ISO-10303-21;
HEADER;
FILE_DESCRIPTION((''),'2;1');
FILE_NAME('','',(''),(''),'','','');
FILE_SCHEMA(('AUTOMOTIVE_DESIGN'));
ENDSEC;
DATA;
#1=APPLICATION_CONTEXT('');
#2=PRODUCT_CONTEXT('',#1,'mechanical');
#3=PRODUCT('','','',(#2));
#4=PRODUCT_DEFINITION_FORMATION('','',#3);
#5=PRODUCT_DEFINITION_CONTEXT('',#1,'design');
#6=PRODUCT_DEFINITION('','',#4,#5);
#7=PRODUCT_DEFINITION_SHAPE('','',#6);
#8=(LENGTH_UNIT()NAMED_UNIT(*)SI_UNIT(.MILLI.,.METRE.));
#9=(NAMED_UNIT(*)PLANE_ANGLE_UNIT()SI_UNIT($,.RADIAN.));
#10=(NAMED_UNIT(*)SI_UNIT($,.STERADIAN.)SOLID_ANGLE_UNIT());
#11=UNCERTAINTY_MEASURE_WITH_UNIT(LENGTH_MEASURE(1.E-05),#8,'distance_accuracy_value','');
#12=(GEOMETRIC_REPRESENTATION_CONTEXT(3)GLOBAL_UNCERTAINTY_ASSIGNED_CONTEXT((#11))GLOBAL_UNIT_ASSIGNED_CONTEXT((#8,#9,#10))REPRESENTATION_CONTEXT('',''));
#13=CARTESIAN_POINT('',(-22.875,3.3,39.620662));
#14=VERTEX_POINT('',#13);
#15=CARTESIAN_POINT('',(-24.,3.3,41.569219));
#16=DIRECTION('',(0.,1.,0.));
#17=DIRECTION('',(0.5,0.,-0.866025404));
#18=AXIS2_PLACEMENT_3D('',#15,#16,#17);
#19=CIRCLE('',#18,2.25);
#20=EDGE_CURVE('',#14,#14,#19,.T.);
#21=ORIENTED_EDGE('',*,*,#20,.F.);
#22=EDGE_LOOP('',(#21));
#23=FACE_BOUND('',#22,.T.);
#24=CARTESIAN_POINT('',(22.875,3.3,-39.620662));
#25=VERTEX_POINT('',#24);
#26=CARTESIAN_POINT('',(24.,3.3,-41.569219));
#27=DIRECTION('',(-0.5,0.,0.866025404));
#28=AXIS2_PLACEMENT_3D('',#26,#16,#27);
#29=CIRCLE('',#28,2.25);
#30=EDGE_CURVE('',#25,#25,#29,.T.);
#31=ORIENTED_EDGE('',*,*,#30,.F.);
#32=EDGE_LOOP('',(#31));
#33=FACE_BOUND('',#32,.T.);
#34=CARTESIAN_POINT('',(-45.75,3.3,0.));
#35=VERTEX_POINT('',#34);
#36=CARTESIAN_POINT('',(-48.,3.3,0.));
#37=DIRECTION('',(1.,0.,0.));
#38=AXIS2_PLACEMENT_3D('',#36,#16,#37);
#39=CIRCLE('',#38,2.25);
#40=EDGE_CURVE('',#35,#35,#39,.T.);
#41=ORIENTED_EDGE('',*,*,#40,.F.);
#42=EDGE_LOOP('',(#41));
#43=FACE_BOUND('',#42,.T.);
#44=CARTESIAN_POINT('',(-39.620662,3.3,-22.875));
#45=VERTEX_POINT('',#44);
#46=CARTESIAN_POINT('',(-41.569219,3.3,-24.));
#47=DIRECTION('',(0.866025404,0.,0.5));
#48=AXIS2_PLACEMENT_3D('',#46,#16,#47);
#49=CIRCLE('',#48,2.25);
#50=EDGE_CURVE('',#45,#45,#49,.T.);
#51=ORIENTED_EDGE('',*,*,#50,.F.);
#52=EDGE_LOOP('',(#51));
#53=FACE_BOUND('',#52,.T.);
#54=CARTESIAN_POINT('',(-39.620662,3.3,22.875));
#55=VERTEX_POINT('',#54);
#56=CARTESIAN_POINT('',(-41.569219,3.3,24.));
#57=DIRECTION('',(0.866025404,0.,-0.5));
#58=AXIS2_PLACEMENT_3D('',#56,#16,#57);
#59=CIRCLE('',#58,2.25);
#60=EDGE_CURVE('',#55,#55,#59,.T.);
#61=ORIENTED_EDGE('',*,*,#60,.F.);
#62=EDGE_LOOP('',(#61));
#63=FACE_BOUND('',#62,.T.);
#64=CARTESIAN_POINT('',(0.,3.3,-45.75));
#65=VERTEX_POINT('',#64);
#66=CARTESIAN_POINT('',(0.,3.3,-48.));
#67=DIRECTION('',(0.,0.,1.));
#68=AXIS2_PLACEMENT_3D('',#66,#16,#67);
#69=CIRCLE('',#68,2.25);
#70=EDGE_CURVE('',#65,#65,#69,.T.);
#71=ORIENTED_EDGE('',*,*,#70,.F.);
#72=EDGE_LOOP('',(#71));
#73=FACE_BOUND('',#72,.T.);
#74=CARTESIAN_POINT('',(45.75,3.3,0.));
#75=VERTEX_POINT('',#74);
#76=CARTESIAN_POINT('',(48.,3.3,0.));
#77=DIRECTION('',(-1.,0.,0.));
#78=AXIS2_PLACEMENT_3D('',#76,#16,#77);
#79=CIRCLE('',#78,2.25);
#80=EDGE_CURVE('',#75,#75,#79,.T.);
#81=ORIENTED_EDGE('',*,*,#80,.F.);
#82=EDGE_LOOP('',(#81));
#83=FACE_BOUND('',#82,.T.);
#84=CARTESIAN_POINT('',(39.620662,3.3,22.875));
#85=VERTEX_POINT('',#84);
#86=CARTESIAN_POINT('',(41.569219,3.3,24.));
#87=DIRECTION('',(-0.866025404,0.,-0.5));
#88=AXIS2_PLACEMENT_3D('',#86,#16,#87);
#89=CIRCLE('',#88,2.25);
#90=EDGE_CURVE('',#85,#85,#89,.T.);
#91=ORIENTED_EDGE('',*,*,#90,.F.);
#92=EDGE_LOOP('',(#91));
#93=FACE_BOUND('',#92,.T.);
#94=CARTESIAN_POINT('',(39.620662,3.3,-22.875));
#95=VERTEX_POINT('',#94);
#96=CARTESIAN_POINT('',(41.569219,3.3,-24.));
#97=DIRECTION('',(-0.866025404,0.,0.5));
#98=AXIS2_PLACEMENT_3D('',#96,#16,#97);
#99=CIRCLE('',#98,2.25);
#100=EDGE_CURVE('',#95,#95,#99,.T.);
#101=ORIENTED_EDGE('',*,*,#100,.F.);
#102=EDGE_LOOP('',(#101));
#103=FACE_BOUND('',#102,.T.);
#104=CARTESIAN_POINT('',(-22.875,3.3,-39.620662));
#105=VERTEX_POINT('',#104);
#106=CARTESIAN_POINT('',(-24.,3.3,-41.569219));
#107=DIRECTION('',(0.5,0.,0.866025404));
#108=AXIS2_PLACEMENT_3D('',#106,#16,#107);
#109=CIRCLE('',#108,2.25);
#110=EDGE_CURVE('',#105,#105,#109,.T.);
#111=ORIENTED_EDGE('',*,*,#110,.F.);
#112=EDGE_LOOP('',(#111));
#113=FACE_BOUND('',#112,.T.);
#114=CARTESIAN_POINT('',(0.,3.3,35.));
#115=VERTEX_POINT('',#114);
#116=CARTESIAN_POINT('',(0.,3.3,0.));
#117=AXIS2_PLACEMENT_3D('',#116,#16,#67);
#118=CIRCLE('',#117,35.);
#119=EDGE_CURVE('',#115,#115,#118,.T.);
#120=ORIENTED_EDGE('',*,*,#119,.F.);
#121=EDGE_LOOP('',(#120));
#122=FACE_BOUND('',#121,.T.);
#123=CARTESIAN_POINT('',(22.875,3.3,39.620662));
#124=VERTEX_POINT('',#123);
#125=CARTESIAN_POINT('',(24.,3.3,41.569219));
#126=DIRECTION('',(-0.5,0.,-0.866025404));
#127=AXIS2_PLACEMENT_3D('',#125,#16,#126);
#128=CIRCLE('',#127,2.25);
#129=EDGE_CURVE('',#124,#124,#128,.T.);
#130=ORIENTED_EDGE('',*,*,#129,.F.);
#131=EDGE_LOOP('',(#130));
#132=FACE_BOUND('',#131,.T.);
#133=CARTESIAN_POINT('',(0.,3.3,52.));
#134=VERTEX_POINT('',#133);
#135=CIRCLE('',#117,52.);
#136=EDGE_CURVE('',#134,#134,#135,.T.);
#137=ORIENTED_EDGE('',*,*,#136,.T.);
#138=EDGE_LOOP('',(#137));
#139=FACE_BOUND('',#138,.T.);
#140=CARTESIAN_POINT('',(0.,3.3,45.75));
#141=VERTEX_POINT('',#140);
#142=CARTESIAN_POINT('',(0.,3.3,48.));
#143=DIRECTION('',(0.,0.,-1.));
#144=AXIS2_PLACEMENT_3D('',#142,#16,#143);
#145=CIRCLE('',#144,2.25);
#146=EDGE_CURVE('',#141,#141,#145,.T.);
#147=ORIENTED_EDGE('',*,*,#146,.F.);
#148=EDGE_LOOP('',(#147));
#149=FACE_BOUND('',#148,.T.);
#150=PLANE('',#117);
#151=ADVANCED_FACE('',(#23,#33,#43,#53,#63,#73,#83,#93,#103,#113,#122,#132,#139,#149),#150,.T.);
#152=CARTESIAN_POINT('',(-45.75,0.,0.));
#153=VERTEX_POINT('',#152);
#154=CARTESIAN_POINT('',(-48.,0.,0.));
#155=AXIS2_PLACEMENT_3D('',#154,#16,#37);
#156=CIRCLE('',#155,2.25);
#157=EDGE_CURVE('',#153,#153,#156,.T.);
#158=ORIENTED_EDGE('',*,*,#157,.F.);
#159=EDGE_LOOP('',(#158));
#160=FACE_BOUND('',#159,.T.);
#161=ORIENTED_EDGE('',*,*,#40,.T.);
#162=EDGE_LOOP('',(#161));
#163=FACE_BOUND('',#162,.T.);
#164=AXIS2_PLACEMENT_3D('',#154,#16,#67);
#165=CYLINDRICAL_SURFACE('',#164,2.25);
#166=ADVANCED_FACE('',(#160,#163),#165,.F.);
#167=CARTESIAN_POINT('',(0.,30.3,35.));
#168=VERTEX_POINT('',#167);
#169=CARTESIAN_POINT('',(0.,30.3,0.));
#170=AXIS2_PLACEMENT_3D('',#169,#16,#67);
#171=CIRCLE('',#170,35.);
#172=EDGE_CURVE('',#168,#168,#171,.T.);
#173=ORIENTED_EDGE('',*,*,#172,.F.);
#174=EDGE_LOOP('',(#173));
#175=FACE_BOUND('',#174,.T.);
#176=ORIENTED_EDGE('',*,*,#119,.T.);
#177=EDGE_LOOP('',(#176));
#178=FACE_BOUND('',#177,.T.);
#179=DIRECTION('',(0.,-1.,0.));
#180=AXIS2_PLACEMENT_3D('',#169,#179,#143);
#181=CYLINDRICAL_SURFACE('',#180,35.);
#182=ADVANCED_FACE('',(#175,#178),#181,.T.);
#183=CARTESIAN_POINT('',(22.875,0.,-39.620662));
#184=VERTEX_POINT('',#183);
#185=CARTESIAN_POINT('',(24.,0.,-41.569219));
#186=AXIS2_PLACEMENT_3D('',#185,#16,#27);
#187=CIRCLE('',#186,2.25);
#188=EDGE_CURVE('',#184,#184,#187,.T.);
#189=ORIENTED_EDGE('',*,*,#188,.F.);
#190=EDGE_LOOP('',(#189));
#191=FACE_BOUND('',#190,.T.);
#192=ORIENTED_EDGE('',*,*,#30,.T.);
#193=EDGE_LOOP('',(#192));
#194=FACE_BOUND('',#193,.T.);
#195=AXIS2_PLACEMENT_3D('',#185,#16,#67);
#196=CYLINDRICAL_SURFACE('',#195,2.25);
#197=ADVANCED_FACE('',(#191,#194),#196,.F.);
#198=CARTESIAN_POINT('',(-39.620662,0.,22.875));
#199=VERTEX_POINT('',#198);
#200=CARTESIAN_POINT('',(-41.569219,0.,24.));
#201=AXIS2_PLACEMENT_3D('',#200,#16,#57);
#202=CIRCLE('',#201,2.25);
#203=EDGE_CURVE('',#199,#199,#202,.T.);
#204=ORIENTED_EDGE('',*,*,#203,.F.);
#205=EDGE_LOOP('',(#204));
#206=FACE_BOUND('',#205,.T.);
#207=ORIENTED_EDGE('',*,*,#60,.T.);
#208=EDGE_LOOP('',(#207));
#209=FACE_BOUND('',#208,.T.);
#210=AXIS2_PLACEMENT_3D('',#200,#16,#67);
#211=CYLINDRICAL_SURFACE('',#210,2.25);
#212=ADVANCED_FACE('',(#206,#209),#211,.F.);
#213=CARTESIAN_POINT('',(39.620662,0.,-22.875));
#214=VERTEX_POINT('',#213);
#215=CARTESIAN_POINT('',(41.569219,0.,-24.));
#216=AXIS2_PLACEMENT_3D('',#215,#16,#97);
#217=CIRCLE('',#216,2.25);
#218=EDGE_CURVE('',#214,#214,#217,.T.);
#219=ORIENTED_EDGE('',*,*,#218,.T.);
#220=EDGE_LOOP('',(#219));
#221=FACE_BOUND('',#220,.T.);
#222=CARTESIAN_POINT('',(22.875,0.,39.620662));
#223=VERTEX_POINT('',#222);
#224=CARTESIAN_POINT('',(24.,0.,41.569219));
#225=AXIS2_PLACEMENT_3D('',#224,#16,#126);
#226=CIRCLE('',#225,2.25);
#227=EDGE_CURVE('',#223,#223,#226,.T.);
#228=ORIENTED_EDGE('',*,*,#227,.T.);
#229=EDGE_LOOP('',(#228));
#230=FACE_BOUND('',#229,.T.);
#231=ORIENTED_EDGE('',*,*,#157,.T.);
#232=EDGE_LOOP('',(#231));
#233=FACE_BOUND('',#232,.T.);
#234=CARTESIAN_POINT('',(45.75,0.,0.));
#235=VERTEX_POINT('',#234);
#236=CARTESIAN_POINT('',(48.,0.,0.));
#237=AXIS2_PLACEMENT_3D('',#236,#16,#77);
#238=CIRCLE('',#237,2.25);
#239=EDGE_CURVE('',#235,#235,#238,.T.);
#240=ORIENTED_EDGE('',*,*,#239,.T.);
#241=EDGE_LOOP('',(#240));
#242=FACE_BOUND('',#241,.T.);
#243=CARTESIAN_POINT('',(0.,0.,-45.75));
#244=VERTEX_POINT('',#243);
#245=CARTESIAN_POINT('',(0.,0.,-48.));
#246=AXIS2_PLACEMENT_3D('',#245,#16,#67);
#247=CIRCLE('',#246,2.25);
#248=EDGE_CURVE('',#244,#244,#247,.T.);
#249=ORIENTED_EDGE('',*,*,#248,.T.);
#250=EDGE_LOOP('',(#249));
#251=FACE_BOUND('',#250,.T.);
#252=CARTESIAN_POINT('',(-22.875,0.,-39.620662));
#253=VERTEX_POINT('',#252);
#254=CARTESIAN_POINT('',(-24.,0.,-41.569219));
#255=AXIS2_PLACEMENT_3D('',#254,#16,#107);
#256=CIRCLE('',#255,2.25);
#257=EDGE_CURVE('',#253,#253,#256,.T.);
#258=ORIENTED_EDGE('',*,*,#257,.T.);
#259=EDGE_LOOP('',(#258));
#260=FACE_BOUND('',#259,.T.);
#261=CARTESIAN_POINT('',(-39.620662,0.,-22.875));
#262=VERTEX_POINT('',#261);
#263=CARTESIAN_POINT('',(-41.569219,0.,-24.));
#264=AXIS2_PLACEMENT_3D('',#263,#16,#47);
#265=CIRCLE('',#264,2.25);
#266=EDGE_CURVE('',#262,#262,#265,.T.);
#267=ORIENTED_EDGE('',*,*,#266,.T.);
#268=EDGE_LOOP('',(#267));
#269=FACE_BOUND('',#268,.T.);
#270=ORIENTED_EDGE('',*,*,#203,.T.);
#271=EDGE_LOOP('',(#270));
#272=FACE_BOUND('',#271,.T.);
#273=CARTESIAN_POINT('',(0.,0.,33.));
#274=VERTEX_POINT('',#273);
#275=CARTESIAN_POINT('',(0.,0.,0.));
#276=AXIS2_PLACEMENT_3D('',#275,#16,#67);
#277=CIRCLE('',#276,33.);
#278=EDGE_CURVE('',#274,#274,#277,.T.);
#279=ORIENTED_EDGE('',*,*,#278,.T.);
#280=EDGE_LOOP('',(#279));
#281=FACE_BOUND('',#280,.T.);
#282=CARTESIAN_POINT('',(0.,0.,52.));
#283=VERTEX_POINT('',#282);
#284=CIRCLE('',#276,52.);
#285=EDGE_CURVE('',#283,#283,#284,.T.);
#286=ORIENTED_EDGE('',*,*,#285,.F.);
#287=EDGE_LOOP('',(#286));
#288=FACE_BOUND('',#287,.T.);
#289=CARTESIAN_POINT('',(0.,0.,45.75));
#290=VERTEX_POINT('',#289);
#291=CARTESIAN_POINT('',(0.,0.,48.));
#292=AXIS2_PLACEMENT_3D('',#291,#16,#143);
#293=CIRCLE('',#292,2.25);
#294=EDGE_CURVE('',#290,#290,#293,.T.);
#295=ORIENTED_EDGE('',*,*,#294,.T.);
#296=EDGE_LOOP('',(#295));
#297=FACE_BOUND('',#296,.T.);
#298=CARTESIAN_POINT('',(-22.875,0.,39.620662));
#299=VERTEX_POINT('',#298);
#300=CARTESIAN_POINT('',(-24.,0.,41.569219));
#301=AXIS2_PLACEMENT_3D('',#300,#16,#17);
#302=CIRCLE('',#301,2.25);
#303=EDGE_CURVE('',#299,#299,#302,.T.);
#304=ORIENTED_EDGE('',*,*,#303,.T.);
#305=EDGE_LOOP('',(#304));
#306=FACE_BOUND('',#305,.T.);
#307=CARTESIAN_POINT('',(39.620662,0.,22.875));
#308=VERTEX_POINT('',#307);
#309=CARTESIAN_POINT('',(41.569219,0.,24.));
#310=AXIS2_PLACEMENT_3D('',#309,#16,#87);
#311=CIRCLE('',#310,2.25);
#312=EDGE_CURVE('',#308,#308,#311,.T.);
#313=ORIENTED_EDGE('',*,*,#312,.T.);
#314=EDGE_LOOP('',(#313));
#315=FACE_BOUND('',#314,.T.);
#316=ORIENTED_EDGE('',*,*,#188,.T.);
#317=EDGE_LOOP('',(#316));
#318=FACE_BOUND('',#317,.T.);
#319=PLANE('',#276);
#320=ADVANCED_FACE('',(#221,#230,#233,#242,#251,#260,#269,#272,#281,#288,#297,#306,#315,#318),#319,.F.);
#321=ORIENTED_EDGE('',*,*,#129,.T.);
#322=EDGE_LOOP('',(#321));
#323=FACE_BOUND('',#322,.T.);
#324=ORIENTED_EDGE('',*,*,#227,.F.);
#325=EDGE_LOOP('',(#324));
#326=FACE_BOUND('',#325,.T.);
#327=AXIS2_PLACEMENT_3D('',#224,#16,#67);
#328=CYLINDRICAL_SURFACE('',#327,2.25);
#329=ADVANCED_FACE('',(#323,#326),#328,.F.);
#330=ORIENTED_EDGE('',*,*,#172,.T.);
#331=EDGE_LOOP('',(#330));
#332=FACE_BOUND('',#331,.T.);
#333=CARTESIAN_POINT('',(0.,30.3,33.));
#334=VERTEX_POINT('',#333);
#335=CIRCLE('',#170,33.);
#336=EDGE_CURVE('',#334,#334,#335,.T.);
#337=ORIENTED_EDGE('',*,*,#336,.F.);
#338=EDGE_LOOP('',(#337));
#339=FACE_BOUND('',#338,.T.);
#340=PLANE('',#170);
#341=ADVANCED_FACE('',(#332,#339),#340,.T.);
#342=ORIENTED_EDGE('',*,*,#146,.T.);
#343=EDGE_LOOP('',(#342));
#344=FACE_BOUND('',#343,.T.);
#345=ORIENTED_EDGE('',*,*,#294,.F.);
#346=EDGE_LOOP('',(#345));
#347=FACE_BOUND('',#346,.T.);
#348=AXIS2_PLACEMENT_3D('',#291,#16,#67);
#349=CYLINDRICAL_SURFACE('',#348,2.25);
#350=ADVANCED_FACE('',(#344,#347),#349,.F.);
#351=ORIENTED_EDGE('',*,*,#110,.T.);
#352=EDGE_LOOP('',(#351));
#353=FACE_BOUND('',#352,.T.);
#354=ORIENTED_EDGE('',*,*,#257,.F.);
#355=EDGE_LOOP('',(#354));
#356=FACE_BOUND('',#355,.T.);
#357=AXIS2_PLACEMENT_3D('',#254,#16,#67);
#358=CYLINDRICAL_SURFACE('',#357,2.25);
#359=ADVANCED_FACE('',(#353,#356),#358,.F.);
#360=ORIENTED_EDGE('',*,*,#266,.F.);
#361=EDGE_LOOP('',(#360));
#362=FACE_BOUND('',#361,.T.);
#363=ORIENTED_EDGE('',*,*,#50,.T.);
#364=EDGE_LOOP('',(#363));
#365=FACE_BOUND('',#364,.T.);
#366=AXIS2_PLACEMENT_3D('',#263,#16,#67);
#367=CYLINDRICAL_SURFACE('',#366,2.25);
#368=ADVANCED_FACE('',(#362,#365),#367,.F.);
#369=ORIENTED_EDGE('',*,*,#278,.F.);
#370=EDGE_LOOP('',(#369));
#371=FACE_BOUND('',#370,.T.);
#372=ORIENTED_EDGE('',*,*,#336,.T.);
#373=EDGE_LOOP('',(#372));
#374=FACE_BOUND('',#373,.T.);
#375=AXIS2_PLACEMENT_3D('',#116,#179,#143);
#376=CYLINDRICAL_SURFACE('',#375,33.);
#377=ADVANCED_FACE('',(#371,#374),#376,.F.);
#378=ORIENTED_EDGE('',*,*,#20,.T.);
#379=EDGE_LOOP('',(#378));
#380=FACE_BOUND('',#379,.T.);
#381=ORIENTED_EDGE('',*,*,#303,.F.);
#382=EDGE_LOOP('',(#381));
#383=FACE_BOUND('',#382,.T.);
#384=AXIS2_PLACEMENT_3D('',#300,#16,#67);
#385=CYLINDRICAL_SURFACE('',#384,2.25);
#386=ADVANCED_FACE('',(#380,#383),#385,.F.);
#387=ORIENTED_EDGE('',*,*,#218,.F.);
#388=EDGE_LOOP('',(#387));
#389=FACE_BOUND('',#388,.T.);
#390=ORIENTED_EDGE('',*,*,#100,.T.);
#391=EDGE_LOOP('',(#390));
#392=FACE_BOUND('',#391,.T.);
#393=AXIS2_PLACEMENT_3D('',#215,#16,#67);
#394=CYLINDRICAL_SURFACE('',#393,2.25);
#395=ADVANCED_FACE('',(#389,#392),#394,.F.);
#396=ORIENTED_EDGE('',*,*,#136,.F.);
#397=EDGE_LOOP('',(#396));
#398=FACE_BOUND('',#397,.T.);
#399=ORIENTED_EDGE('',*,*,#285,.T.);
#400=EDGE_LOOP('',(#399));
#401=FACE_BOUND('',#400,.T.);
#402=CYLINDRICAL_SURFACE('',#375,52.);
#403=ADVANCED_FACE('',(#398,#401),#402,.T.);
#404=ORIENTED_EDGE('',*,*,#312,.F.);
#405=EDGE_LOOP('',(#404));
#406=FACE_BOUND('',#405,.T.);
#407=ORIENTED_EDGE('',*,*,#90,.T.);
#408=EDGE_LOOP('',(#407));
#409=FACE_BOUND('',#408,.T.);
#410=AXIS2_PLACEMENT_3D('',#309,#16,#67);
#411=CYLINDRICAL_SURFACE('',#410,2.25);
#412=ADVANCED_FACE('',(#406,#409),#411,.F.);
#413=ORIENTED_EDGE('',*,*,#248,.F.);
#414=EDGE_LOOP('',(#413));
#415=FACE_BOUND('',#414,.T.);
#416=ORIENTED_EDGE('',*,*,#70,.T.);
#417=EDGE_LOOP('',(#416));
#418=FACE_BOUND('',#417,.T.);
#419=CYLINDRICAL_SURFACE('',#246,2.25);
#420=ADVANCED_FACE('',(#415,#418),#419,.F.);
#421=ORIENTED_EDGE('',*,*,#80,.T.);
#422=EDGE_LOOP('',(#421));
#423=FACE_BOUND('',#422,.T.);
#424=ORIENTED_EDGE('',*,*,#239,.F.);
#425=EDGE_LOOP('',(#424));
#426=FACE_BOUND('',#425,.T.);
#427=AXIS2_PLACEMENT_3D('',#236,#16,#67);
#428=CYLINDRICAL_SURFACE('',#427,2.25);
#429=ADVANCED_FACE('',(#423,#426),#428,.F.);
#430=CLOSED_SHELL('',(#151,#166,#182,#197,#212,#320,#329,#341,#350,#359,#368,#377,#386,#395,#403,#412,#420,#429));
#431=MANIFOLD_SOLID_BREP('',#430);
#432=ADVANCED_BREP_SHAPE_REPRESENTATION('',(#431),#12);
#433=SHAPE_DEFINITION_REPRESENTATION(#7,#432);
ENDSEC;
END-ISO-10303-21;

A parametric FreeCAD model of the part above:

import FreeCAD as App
import Part
import Sketcher

V = App.Vector
Q = App.Units.Quantity

doc = App.newDocument("Part")
body = doc.addObject("PartDesign::Body", "Body")

sketch1 = body.newObject("Sketcher::SketchObject", "Sketch")
sketch1.AttachmentSupport = (doc.getObject("XZ_Plane"), [""])
sketch1.MapMode = "FlatFace"
sketch1.addGeometry([
    Part.Circle(V(0, 0, 0), V(0, 0, 1), 52),
    Part.Circle(V(0, 0, 0), V(0, 0, 1), 33),
], False)
sketch1.addConstraint([
    Sketcher.Constraint("Coincident", 0, 3, -1, 1),
    Sketcher.Constraint("Coincident", 1, 3, -1, 1),
    Sketcher.Constraint("Diameter", 0, Q("104 mm")),
    Sketcher.Constraint("Diameter", 1, Q("66 mm")),
])
pad1 = body.newObject("PartDesign::Pad", "Pad")
pad1.Profile = sketch1
pad1.Length = 3.3
pad1.Reversed = True

sketch2 = body.newObject("Sketcher::SketchObject", "Sketch001")
sketch2.AttachmentSupport = (doc.getObject("XZ_Plane"), [""])
sketch2.MapMode = "FlatFace"
sketch2.AttachmentOffset = App.Placement(V(0, 0, -3.3), App.Rotation())
sketch2.addGeometry([
    Part.Circle(V(0, 0, 0), V(0, 0, 1), 35),
    Part.Circle(V(0, 0, 0), V(0, 0, 1), 33),
], False)
sketch2.addConstraint([
    Sketcher.Constraint("Coincident", 0, 3, -1, 1),
    Sketcher.Constraint("Coincident", 1, 3, -1, 1),
    Sketcher.Constraint("Diameter", 0, Q("70 mm")),
    Sketcher.Constraint("Diameter", 1, Q("66 mm")),
])
pad2 = body.newObject("PartDesign::Pad", "Pad001")
pad2.Profile = sketch2
pad2.Length = 27
pad2.Reversed = True

sketch3 = body.newObject("Sketcher::SketchObject", "Sketch002")
sketch3.AttachmentSupport = (doc.getObject("XZ_Plane"), [""])
sketch3.MapMode = "FlatFace"
sketch3.AttachmentOffset = App.Placement(V(0, 0, -3.3), App.Rotation())
sketch3.addGeometry(Part.Circle(V(0, -48, 0), V(0, 0, 1), 2.2), False)
sketch3.addConstraint([
    Sketcher.Constraint("PointOnObject", 0, 3, -2),
    Sketcher.Constraint("Diameter", 0, Q("4.5 mm")),
    Sketcher.Constraint("DistanceY", 0, 3, -1, 1, Q("48 mm")),
])
pocket1 = body.newObject("PartDesign::Pocket", "Pocket")
pocket1.Profile = sketch3
pocket1.Type = "ThroughAll"
pocket1.Reversed = True
doc.recompute()

polarpattern = body.newObject("PartDesign::PolarPattern", "PolarPattern")
polarpattern.Originals = [pocket1]
polarpattern.Axis = (doc.getObject("Y_Axis"), [""])
polarpattern.Angle = 360
polarpattern.Occurrences = 12
body.Tip = polarpattern

doc.recompute()
